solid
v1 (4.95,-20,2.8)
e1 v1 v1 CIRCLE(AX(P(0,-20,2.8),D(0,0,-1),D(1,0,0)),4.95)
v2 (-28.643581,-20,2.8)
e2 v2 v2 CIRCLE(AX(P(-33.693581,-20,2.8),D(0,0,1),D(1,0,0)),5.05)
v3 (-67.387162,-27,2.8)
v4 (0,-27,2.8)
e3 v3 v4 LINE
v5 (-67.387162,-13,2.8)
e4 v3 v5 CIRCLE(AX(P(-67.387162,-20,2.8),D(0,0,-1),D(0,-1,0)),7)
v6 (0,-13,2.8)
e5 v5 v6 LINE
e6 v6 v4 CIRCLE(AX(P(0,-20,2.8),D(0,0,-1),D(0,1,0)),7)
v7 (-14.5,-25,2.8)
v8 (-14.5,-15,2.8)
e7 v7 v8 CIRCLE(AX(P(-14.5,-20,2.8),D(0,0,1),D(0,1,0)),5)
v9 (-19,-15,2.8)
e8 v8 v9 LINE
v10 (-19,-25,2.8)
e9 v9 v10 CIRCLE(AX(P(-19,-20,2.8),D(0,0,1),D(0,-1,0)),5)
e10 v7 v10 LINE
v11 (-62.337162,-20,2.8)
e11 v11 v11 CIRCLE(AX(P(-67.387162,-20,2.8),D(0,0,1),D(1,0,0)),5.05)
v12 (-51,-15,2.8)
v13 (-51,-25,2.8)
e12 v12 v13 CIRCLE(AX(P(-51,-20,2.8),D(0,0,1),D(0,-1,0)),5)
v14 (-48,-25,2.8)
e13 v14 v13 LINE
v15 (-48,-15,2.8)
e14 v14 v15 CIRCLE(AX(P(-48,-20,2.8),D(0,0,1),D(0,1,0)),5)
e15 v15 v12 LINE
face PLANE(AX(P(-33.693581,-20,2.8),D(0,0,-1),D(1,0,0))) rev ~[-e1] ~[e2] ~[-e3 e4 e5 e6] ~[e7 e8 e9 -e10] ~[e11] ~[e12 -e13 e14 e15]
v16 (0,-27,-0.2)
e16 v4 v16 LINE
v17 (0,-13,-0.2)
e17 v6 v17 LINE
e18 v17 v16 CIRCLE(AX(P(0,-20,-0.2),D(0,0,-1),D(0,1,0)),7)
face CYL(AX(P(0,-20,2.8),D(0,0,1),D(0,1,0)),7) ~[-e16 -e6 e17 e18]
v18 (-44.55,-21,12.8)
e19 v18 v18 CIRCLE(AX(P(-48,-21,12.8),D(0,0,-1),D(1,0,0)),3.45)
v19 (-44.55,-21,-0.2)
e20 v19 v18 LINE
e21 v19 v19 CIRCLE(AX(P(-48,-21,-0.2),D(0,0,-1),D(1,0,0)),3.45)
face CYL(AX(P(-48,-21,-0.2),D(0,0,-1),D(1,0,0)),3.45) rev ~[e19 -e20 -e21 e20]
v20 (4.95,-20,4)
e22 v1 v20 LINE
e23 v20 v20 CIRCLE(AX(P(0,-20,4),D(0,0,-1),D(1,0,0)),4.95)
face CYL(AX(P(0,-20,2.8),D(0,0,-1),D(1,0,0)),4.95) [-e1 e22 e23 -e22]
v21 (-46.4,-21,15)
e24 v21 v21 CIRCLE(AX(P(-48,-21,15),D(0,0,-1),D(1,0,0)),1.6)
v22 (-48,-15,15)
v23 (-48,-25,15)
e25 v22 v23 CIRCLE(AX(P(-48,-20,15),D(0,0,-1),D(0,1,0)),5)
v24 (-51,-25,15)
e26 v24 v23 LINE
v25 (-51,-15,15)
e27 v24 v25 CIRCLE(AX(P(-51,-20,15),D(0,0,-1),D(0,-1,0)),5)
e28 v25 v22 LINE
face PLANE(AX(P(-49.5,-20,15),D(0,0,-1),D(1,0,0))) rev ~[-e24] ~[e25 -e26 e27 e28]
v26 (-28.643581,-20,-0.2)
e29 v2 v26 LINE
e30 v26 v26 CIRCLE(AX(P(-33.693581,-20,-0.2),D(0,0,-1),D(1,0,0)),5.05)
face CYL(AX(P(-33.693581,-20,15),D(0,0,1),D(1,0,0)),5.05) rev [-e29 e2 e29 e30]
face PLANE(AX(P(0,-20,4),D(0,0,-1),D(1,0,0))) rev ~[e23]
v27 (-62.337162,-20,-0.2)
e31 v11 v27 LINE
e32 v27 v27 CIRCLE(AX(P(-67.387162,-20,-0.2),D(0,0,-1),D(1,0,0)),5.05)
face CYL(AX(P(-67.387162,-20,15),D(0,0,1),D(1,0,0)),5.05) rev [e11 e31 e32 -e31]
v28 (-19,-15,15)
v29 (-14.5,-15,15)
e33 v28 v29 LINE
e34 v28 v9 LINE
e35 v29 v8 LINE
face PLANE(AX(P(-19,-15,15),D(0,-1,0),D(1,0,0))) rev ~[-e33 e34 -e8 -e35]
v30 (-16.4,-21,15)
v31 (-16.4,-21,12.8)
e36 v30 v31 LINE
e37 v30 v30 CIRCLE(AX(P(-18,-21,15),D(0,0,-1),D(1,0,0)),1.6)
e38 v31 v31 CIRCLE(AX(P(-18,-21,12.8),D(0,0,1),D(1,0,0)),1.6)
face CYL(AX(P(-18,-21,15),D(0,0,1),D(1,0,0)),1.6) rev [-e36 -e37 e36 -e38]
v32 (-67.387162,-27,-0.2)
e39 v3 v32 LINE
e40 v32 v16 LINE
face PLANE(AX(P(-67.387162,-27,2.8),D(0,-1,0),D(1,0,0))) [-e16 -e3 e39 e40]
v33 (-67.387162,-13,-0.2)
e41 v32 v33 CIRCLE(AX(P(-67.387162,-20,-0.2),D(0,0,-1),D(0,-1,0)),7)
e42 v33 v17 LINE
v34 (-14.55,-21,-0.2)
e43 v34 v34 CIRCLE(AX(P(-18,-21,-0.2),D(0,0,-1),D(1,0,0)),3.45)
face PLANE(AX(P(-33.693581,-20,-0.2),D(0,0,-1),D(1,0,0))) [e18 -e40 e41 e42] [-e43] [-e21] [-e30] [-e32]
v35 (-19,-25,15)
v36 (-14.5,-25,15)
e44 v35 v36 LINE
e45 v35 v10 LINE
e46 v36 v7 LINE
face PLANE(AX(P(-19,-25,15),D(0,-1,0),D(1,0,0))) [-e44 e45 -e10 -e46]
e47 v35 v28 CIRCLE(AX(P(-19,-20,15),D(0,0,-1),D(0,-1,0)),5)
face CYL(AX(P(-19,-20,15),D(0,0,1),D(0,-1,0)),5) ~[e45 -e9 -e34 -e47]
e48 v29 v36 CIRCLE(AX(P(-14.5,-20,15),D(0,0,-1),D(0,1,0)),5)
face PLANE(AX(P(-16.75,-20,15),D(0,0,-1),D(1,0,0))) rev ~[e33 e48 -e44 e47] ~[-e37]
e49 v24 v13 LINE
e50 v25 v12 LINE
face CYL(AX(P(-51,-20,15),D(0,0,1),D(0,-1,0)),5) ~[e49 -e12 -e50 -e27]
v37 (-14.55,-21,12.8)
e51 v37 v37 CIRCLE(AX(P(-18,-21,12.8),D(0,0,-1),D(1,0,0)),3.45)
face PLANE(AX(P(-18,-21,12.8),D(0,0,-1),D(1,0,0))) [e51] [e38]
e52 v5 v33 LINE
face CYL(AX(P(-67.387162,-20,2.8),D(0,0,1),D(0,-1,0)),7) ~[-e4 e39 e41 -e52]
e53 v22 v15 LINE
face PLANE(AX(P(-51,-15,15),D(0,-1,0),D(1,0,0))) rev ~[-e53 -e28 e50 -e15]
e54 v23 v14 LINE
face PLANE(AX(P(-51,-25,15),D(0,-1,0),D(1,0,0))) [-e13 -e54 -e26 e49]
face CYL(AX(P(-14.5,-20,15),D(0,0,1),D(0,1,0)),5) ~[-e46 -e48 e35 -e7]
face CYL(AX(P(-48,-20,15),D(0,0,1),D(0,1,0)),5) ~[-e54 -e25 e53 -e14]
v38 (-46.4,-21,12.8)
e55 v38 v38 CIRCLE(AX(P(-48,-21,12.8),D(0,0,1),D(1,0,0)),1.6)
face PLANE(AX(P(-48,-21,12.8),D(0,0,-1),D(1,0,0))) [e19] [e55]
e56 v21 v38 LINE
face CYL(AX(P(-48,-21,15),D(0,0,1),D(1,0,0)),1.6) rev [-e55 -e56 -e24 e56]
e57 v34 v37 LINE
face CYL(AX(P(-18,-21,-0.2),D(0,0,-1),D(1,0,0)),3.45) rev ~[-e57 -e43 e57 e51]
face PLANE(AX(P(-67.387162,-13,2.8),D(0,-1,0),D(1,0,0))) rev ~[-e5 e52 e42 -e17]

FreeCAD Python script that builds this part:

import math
import FreeCAD as App
import Part
import Sketcher
from FreeCAD import Vector

doc = App.newDocument("Part")
body = doc.addObject("PartDesign::Body", "Body")

# Sketch on XY plane
sketch1 = body.newObject("Sketcher::SketchObject", "Sketch")
sketch1.AttachmentSupport = (doc.getObject("XY_Plane"), [""])
sketch1.MapMode = "FlatFace"
sketch1.AttachmentOffset = App.Placement(Vector(0, 0, 12.2), App.Rotation())
sketch1.addGeometry(Part.ArcOfCircle(Part.Circle(Vector(-67, 0, 0), Vector(0, 0, 1), 7), math.radians(90), math.radians(270)), False)
sketch1.addGeometry(Part.LineSegment(Vector(-67, -7, 0), Vector(0, -7, 0)), False)
sketch1.addGeometry(Part.ArcOfCircle(Part.Circle(Vector(0, 0, 0), Vector(0, 0, 1), 7), math.radians(-90), math.radians(90)), False)
sketch1.addGeometry(Part.LineSegment(Vector(0, 7, 0), Vector(-67, 7, 0)), False)
sketch1.addConstraint(Sketcher.Constraint("Tangent", 0, 2, 1, 1))
sketch1.addConstraint(Sketcher.Constraint("Tangent", 1, 2, 2, 1))
sketch1.addConstraint(Sketcher.Constraint("Tangent", 2, 2, 3, 1))
sketch1.addConstraint(Sketcher.Constraint("Tangent", 3, 2, 0, 1))
sketch1.addConstraint(Sketcher.Constraint("Horizontal", 1))
sketch1.addConstraint(Sketcher.Constraint("Horizontal", 3))
sketch1.addConstraint(Sketcher.Constraint("Coincident", 2, 3, -1, 1))
sketch1.addConstraint(Sketcher.Constraint("Radius", 0, 7.0))
sketch1.addConstraint(Sketcher.Constraint("DistanceX", 1, 1, 1, 2, 67.387162))
pad1 = body.newObject("PartDesign::Pad", "Pad")
pad1.Profile = sketch1
pad1.Length = 3

# Sketch on XY plane
sketch2 = body.newObject("Sketcher::SketchObject", "Sketch001")
sketch2.AttachmentSupport = (doc.getObject("XY_Plane"), [""])
sketch2.MapMode = "FlatFace"
sketch2.addGeometry(Part.ArcOfCircle(Part.Circle(Vector(-19, 0, 0), Vector(0, 0, 1), 5), math.radians(90), math.radians(270)), False)
sketch2.addGeometry(Part.LineSegment(Vector(-19, -5, 0), Vector(-14.5, -5, 0)), False)
sketch2.addGeometry(Part.ArcOfCircle(Part.Circle(Vector(-14.5, 0, 0), Vector(0, 0, 1), 5), math.radians(-90), math.radians(90)), False)
sketch2.addGeometry(Part.LineSegment(Vector(-14.5, 5, 0), Vector(-19, 5, 0)), False)
sketch2.addGeometry(Part.ArcOfCircle(Part.Circle(Vector(-51, 0, 0), Vector(0, 0, 1), 5), math.radians(90), math.radians(270)), False)
sketch2.addGeometry(Part.LineSegment(Vector(-51, -5, 0), Vector(-48, -5, 0)), False)
sketch2.addGeometry(Part.ArcOfCircle(Part.Circle(Vector(-48, 0, 0), Vector(0, 0, 1), 5), math.radians(-90), math.radians(90)), False)
sketch2.addGeometry(Part.LineSegment(Vector(-48, 5, 0), Vector(-51, 5, 0)), False)
sketch2.addConstraint(Sketcher.Constraint("Tangent", 0, 2, 1, 1))
sketch2.addConstraint(Sketcher.Constraint("Tangent", 1, 2, 2, 1))
sketch2.addConstraint(Sketcher.Constraint("Tangent", 2, 2, 3, 1))
sketch2.addConstraint(Sketcher.Constraint("Tangent", 3, 2, 0, 1))
sketch2.addConstraint(Sketcher.Constraint("Tangent", 4, 2, 5, 1))
sketch2.addConstraint(Sketcher.Constraint("Tangent", 5, 2, 6, 1))
sketch2.addConstraint(Sketcher.Constraint("Tangent", 6, 2, 7, 1))
sketch2.addConstraint(Sketcher.Constraint("Tangent", 7, 2, 4, 1))
sketch2.addConstraint(Sketcher.Constraint("Horizontal", 1))
sketch2.addConstraint(Sketcher.Constraint("Horizontal", 3))
sketch2.addConstraint(Sketcher.Constraint("Horizontal", 5))
sketch2.addConstraint(Sketcher.Constraint("Horizontal", 7))
sketch2.addConstraint(Sketcher.Constraint("Equal", 2, 4))
sketch2.addConstraint(Sketcher.Constraint("PointOnObject", 0, 3, -1))
sketch2.addConstraint(Sketcher.Constraint("PointOnObject", 4, 3, -1))
sketch2.addConstraint(Sketcher.Constraint("Radius", 0, 5.0))
sketch2.addConstraint(Sketcher.Constraint("DistanceX", 5, 1, 5, 2, 3.0))
sketch2.addConstraint(Sketcher.Constraint("DistanceX", 1, 1, 1, 2, 4.5))
sketch2.addConstraint(Sketcher.Constraint("DistanceX", 0, 3, -1, 1, 19.0))
sketch2.addConstraint(Sketcher.Constraint("DistanceX", 4, 3, -1, 1, 51.0))
pad2 = body.newObject("PartDesign::Pad", "Pad001")
pad2.Profile = sketch2
pad2.Length = 15.2

# Sketch on XY plane
sketch3 = body.newObject("Sketcher::SketchObject", "Sketch002")
sketch3.AttachmentSupport = (doc.getObject("XY_Plane"), [""])
sketch3.MapMode = "FlatFace"
sketch3.addGeometry(Part.Circle(Vector(-33.7, 0, 0), Vector(0, 0, 1), 5), False)
sketch3.addGeometry(Part.Circle(Vector(-67.4, 0, 0), Vector(0, 0, 1), 5), False)
sketch3.addGeometry(Part.Circle(Vector(-18, 1, 0), Vector(0, 0, 1), 1.6), False)
sketch3.addGeometry(Part.Circle(Vector(-48, 1, 0), Vector(0, 0, 1), 1.6), False)
sketch3.addConstraint(Sketcher.Constraint("Equal", 0, 1))
sketch3.addConstraint(Sketcher.Constraint("Equal", 2, 3))
sketch3.addConstraint(Sketcher.Constraint("PointOnObject", 0, 3, -1))
sketch3.addConstraint(Sketcher.Constraint("PointOnObject", 1, 3, -1))
sketch3.addConstraint(Sketcher.Constraint("Horizontal", 2, 3, 3, 3))
sketch3.addConstraint(Sketcher.Constraint("Diameter", 0, 10.1))
sketch3.addConstraint(Sketcher.Constraint("Diameter", 2, 3.2))
sketch3.addConstraint(Sketcher.Constraint("DistanceX", 2, 3, -1, 1, 18.0))
sketch3.addConstraint(Sketcher.Constraint("DistanceY", -1, 1, 2, 3, 1.0))
sketch3.addConstraint(Sketcher.Constraint("DistanceX", 3, 3, -1, 1, 48.0))
sketch3.addConstraint(Sketcher.Constraint("DistanceX", 0, 3, -1, 1, 33.693581))
sketch3.addConstraint(Sketcher.Constraint("DistanceX", 1, 3, 0, 3, 33.693581))
pocket1 = body.newObject("PartDesign::Pocket", "Pocket")
pocket1.Profile = sketch3
pocket1.Length = 15.2
pocket1.Reversed = True

# Sketch on XY plane
sketch4 = body.newObject("Sketcher::SketchObject", "Sketch003")
sketch4.AttachmentSupport = (doc.getObject("XY_Plane"), [""])
sketch4.MapMode = "FlatFace"
sketch4.AttachmentOffset = App.Placement(Vector(0, 0, 12.2), App.Rotation())
sketch4.addGeometry(Part.Circle(Vector(0, 0, 0), Vector(0, 0, 1), 5), False)
sketch4.addConstraint(Sketcher.Constraint("Coincident", 0, 3, -1, 1))
sketch4.addConstraint(Sketcher.Constraint("Diameter", 0, 9.9))
pad3 = body.newObject("PartDesign::Pad", "Pad002")
pad3.Profile = sketch4
pad3.Length = 1.2
pad3.Reversed = True

# Sketch on XY plane
sketch5 = body.newObject("Sketcher::SketchObject", "Sketch004")
sketch5.AttachmentSupport = (doc.getObject("XY_Plane"), [""])
sketch5.MapMode = "FlatFace"
sketch5.AttachmentOffset = App.Placement(Vector(0, 0, 15.2), App.Rotation())
sketch5.addGeometry(Part.Circle(Vector(-18, 1, 0), Vector(0, 0, 1), 3.5), False)
sketch5.addGeometry(Part.Circle(Vector(-48, 1, 0), Vector(0, 0, 1), 3.5), False)
sketch5.addConstraint(Sketcher.Constraint("Equal", 0, 1))
sketch5.addConstraint(Sketcher.Constraint("Horizontal", 0, 3, 1, 3))
sketch5.addConstraint(Sketcher.Constraint("Diameter", 0, 6.9))
sketch5.addConstraint(Sketcher.Constraint("DistanceX", 0, 3, -1, 1, 18.0))
sketch5.addConstraint(Sketcher.Constraint("DistanceY", -1, 1, 0, 3, 1.0))
sketch5.addConstraint(Sketcher.Constraint("DistanceX", 1, 3, -1, 1, 48.0))
pocket2 = body.newObject("PartDesign::Pocket", "Pocket001")
pocket2.Profile = sketch5
pocket2.Length = 13
body2 = doc.addObject("PartDesign::Body", "Body001")
doc.recompute()

body.Placement = App.Placement(Vector(0, -20, 15), App.Rotation(Vector(1, 0, 0), 180))
boolean = body2.newObject("PartDesign::Boolean", "Boolean")
boolean.Type = "Fuse"
boolean.addObjects([body])

doc.recompute()
